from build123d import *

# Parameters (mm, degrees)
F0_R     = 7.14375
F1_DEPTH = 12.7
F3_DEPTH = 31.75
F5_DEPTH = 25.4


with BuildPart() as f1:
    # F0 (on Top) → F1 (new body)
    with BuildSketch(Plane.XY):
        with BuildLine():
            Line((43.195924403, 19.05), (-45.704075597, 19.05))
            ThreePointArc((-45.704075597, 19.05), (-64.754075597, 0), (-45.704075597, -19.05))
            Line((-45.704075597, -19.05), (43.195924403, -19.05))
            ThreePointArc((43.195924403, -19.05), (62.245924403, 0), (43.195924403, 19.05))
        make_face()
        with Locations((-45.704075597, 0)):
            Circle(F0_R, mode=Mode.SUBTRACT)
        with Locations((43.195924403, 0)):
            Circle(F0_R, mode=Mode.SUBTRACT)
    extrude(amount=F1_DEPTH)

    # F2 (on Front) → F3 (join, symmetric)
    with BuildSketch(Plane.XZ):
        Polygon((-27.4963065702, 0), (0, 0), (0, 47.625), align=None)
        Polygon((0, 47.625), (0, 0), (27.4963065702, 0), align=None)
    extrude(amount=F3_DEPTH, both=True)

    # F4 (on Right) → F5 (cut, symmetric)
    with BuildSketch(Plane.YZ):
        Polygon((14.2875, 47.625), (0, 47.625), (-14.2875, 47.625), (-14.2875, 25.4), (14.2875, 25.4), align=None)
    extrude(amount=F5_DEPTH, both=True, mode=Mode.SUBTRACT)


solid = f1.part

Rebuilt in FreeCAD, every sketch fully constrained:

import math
import FreeCAD as App
import Part
import Sketcher

V = App.Vector
Q = App.Units.Quantity

doc = App.newDocument("Part")
body = doc.addObject("PartDesign::Body", "Body")

# Sketch on XY plane
sketch1 = doc.addObject("Sketcher::SketchObject", "Sketch")
body.addObject(sketch1)
sketch1.AttachmentSupport = (doc.XY_Plane, [""])
sketch1.MapMode = "FlatFace"
sketch1.addGeometry([
    Part.LineSegment(V(43, 19, 0), V(-46, 19, 0)),  # 0
    Part.ArcOfCircle(Part.Circle(V(-46, 0, 0), V(0, 0, 1), 19), math.radians(90), math.radians(270)),  # 1
    Part.LineSegment(V(-46, -19, 0), V(43, -19, 0)),  # 2
    Part.ArcOfCircle(Part.Circle(V(43, 0, 0), V(0, 0, 1), 19), math.radians(-90), math.radians(90)),  # 3
    Part.Circle(V(-46, 0, 0), V(0, 0, 1), 7),  # 4
    Part.Circle(V(43, 0, 0), V(0, 0, 1), 7),  # 5
], False)
sketch1.addConstraint([
    Sketcher.Constraint("Tangent", 0, 2, 1, 1),
    Sketcher.Constraint("Tangent", 1, 2, 2, 1),
    Sketcher.Constraint("Tangent", 2, 2, 3, 1),
    Sketcher.Constraint("Tangent", 3, 2, 0, 1),
    Sketcher.Constraint("Horizontal", 0),
    Sketcher.Constraint("Horizontal", 2),
    Sketcher.Constraint("Coincident", 4, 3, 1, 3),
    Sketcher.Constraint("Coincident", 5, 3, 3, 3),
    Sketcher.Constraint("Equal", 4, 5),
    Sketcher.Constraint("PointOnObject", 1, 3, -1),
    Sketcher.Constraint("Radius", 1, Q("0.75 in")),
    Sketcher.Constraint("Diameter", 4, Q("0.5625 in")),
    Sketcher.Constraint("DistanceX", 0, 2, 0, 1, Q("3.5 in")),
    Sketcher.Constraint("DistanceX", 1, 3, -1, 1, Q("45.704076 mm")),
])
pad1 = doc.addObject("PartDesign::Pad", "Pad")
body.addObject(pad1)
pad1.Profile = sketch1
pad1.Length = Q("0.5 in")

# Sketch on XZ plane
sketch2 = doc.addObject("Sketcher::SketchObject", "Sketch001")
body.addObject(sketch2)
sketch2.AttachmentSupport = (doc.XZ_Plane, [""])
sketch2.MapMode = "FlatFace"
sketch2.addGeometry([
    Part.LineSegment(V(-27, 0, 0), V(27, 0, 0)),
    Part.LineSegment(V(27, 0, 0), V(0, 48, 0)),
    Part.LineSegment(V(0, 48, 0), V(-27, 0, 0)),
], False)
sketch2.addConstraint([
    Sketcher.Constraint("Coincident", 0, 2, 1, 1),
    Sketcher.Constraint("Coincident", 1, 2, 2, 1),
    Sketcher.Constraint("Coincident", 2, 2, 0, 1),
    Sketcher.Constraint("Horizontal", 0),
    Sketcher.Constraint("Symmetric", 0, 2, 2, 2, -1, 1),
    Sketcher.Constraint("PointOnObject", 1, 2, -2),
    Sketcher.Constraint("Angle", 1, Q("120 deg")),
    Sketcher.Constraint("DistanceY", -1, 1, 1, 2, Q("1.875 in")),
])
pad2 = doc.addObject("PartDesign::Pad", "Pad001")
body.addObject(pad2)
pad2.Profile = sketch2
pad2.Length = Q("2.5 in")
pad2.Midplane = True

# Sketch on YZ plane
sketch3 = doc.addObject("Sketcher::SketchObject", "Sketch002")
body.addObject(sketch3)
sketch3.AttachmentSupport = (doc.YZ_Plane, [""])
sketch3.MapMode = "FlatFace"
sketch3.addGeometry([
    Part.LineSegment(V(14, 48, 0), V(-14, 48, 0)),
    Part.LineSegment(V(-14, 48, 0), V(-14, 25, 0)),
    Part.LineSegment(V(-14, 25, 0), V(14, 25, 0)),
    Part.LineSegment(V(14, 25, 0), V(14, 48, 0)),
], False)
sketch3.addConstraint([
    Sketcher.Constraint("Coincident", 0, 2, 1, 1),
    Sketcher.Constraint("Coincident", 1, 2, 2, 1),
    Sketcher.Constraint("Coincident", 2, 2, 3, 1),
    Sketcher.Constraint("Coincident", 3, 2, 0, 1),
    Sketcher.Constraint("Horizontal", 0),
    Sketcher.Constraint("Vertical", 1),
    Sketcher.Constraint("Horizontal", 2),
    Sketcher.Constraint("Vertical", 3),
    Sketcher.Constraint("DistanceY", -1, 1, 1, 2, Q("1 in")),
    Sketcher.Constraint("DistanceX", 0, 2, 0, 1, Q("1.125 in")),
    Sketcher.Constraint("DistanceY", 1, 2, 1, 1, Q("0.875 in")),
    Sketcher.Constraint("DistanceX", 0, 2, -1, 1, Q("0.5625 in")),
])
pocket1 = doc.addObject("PartDesign::Pocket", "Pocket")
body.addObject(pocket1)
pocket1.Profile = sketch3
pocket1.Length = Q("2 in")
pocket1.Midplane = True

doc.recompute()
